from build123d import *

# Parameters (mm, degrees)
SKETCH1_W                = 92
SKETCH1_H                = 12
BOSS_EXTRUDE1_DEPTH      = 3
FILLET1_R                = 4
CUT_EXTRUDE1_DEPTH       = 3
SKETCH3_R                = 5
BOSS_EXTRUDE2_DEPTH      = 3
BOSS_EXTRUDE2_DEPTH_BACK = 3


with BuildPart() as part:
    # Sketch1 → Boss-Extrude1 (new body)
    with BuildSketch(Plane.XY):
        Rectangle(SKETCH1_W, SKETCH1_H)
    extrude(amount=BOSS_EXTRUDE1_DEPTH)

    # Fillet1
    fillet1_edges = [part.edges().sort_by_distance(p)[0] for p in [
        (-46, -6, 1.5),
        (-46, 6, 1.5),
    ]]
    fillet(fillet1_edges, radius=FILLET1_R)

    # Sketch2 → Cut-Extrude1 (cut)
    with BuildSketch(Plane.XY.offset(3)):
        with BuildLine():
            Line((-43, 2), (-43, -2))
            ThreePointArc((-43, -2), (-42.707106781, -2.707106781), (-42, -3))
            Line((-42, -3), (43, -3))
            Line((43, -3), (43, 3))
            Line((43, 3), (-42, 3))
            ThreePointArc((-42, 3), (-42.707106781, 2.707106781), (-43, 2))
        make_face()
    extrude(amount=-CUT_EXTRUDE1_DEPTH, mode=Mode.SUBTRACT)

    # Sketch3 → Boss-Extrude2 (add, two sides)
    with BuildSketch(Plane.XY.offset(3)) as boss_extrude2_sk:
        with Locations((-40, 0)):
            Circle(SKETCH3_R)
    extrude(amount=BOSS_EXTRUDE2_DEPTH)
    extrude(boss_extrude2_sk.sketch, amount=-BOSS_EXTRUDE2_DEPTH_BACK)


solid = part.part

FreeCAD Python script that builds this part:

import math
import FreeCAD as App
import Part
import Sketcher
from FreeCAD import Vector
Q = App.Units.Quantity


def edges_at(feature, points):
    """Names of the edges that pass closest to the given points."""
    edges = feature.Shape.Edges
    near = lambda p: min(range(len(edges)), key=lambda i: edges[i].distToShape(Part.Vertex(*p))[0])
    return sorted({f"Edge{near(p) + 1}" for p in points})


def add_polygon(sketch, points):
    """Adds a closed chain of lines whose ends are joined by coincident constraints."""
    first, n = sketch.GeometryCount, len(points)
    for a, b in zip(points, points[1:] + points[:1]):
        sketch.addGeometry(Part.LineSegment(App.Vector(*a, 0), App.Vector(*b, 0)), False)
    for i in range(n):
        sketch.addConstraint(Sketcher.Constraint("Coincident", first + i, 2, first + (i + 1) % n, 1))

doc = App.newDocument("Part")
body = doc.addObject("PartDesign::Body", "Body")

sketch1 = body.newObject("Sketcher::SketchObject", "Sketch")
sketch1.AttachmentSupport = (doc.getObject("XY_Plane"), [""])
sketch1.MapMode = "FlatFace"
add_polygon(sketch1, [(-46, 6), (-46, -6), (46, -6), (46, 6)])
sketch1.addConstraint(Sketcher.Constraint("Vertical", 0))
sketch1.addConstraint(Sketcher.Constraint("Horizontal", 1))
sketch1.addConstraint(Sketcher.Constraint("Vertical", 2))
sketch1.addConstraint(Sketcher.Constraint("Horizontal", 3))
sketch1.addConstraint(Sketcher.Constraint("Symmetric", 0, 2, 2, 2, -1, 1))
sketch1.addConstraint(Sketcher.Constraint("DistanceX", 1, 1, 1, 2, Q("92 mm")))
sketch1.addConstraint(Sketcher.Constraint("DistanceY", 0, 2, 0, 1, Q("12 mm")))
pad1 = body.newObject("PartDesign::Pad", "Pad")
pad1.Profile = sketch1
pad1.Length = 3
doc.recompute()

fillet = body.newObject("PartDesign::Fillet", "Fillet")
fillet.Base = (pad1, edges_at(pad1, [(-46, -6, 1.5), (-46, 6, 1.5)]))
fillet.Radius = 4

sketch2 = body.newObject("Sketcher::SketchObject", "Sketch001")
sketch2.AttachmentSupport = (doc.getObject("XY_Plane"), [""])
sketch2.MapMode = "FlatFace"
sketch2.AttachmentOffset = App.Placement(Vector(0, 0, 3), App.Rotation())
sketch2.addGeometry(Part.LineSegment(Vector(-43, 2, 0), Vector(-43, -2, 0)), False)
sketch2.addGeometry(Part.ArcOfCircle(Part.Circle(Vector(-42, -2, 0), Vector(0, 0, 1), 1), math.radians(-180), math.radians(-90)), False)
sketch2.addGeometry(Part.LineSegment(Vector(-42, -3, 0), Vector(43, -3, 0)), False)
sketch2.addGeometry(Part.LineSegment(Vector(43, -3, 0), Vector(43, 3, 0)), False)
sketch2.addGeometry(Part.LineSegment(Vector(43, 3, 0), Vector(-42, 3, 0)), False)
sketch2.addGeometry(Part.ArcOfCircle(Part.Circle(Vector(-42, 2, 0), Vector(0, 0, 1), 1), math.radians(90), math.radians(180)), False)
sketch2.addConstraint(Sketcher.Constraint("Tangent", 0, 2, 1, 1))
sketch2.addConstraint(Sketcher.Constraint("Tangent", 1, 2, 2, 1))
sketch2.addConstraint(Sketcher.Constraint("Coincident", 2, 2, 3, 1))
sketch2.addConstraint(Sketcher.Constraint("Coincident", 3, 2, 4, 1))
sketch2.addConstraint(Sketcher.Constraint("Tangent", 4, 2, 5, 1))
sketch2.addConstraint(Sketcher.Constraint("Tangent", 5, 2, 0, 1))
sketch2.addConstraint(Sketcher.Constraint("Vertical", 0))
sketch2.addConstraint(Sketcher.Constraint("Horizontal", 2))
sketch2.addConstraint(Sketcher.Constraint("Vertical", 3))
sketch2.addConstraint(Sketcher.Constraint("Horizontal", 4))
sketch2.addConstraint(Sketcher.Constraint("Equal", 1, 5))
sketch2.addConstraint(Sketcher.Constraint("Radius", 1, Q("1 mm")))
sketch2.addConstraint(Sketcher.Constraint("DistanceX", 2, 1, 2, 2, Q("85 mm")))
sketch2.addConstraint(Sketcher.Constraint("DistanceY", 0, 2, 0, 1, Q("4 mm")))
sketch2.addConstraint(Sketcher.Constraint("DistanceX", 1, 3, -1, 1, Q("42 mm")))
sketch2.addConstraint(Sketcher.Constraint("DistanceY", 1, 3, -1, 1, Q("2 mm")))
pocket1 = body.newObject("PartDesign::Pocket", "Pocket")
pocket1.Profile = sketch2
pocket1.Length = 3

sketch3 = body.newObject("Sketcher::SketchObject", "Sketch002")
sketch3.AttachmentSupport = (doc.getObject("XY_Plane"), [""])
sketch3.MapMode = "FlatFace"
sketch3.AttachmentOffset = App.Placement(Vector(0, 0, 3), App.Rotation())
sketch3.addGeometry(Part.Circle(Vector(-40, 0, 0), Vector(0, 0, 1), 5), False)
sketch3.addConstraint(Sketcher.Constraint("PointOnObject", 0, 3, -1))
sketch3.addConstraint(Sketcher.Constraint("Diameter", 0, Q("10 mm")))
sketch3.addConstraint(Sketcher.Constraint("DistanceX", 0, 3, -1, 1, Q("40 mm")))
pad2 = body.newObject("PartDesign::Pad", "Pad001")
pad2.Profile = sketch3
pad2.Type = "TwoLengths"
pad2.Length = 3
pad2.Length2 = 3

doc.recompute()
